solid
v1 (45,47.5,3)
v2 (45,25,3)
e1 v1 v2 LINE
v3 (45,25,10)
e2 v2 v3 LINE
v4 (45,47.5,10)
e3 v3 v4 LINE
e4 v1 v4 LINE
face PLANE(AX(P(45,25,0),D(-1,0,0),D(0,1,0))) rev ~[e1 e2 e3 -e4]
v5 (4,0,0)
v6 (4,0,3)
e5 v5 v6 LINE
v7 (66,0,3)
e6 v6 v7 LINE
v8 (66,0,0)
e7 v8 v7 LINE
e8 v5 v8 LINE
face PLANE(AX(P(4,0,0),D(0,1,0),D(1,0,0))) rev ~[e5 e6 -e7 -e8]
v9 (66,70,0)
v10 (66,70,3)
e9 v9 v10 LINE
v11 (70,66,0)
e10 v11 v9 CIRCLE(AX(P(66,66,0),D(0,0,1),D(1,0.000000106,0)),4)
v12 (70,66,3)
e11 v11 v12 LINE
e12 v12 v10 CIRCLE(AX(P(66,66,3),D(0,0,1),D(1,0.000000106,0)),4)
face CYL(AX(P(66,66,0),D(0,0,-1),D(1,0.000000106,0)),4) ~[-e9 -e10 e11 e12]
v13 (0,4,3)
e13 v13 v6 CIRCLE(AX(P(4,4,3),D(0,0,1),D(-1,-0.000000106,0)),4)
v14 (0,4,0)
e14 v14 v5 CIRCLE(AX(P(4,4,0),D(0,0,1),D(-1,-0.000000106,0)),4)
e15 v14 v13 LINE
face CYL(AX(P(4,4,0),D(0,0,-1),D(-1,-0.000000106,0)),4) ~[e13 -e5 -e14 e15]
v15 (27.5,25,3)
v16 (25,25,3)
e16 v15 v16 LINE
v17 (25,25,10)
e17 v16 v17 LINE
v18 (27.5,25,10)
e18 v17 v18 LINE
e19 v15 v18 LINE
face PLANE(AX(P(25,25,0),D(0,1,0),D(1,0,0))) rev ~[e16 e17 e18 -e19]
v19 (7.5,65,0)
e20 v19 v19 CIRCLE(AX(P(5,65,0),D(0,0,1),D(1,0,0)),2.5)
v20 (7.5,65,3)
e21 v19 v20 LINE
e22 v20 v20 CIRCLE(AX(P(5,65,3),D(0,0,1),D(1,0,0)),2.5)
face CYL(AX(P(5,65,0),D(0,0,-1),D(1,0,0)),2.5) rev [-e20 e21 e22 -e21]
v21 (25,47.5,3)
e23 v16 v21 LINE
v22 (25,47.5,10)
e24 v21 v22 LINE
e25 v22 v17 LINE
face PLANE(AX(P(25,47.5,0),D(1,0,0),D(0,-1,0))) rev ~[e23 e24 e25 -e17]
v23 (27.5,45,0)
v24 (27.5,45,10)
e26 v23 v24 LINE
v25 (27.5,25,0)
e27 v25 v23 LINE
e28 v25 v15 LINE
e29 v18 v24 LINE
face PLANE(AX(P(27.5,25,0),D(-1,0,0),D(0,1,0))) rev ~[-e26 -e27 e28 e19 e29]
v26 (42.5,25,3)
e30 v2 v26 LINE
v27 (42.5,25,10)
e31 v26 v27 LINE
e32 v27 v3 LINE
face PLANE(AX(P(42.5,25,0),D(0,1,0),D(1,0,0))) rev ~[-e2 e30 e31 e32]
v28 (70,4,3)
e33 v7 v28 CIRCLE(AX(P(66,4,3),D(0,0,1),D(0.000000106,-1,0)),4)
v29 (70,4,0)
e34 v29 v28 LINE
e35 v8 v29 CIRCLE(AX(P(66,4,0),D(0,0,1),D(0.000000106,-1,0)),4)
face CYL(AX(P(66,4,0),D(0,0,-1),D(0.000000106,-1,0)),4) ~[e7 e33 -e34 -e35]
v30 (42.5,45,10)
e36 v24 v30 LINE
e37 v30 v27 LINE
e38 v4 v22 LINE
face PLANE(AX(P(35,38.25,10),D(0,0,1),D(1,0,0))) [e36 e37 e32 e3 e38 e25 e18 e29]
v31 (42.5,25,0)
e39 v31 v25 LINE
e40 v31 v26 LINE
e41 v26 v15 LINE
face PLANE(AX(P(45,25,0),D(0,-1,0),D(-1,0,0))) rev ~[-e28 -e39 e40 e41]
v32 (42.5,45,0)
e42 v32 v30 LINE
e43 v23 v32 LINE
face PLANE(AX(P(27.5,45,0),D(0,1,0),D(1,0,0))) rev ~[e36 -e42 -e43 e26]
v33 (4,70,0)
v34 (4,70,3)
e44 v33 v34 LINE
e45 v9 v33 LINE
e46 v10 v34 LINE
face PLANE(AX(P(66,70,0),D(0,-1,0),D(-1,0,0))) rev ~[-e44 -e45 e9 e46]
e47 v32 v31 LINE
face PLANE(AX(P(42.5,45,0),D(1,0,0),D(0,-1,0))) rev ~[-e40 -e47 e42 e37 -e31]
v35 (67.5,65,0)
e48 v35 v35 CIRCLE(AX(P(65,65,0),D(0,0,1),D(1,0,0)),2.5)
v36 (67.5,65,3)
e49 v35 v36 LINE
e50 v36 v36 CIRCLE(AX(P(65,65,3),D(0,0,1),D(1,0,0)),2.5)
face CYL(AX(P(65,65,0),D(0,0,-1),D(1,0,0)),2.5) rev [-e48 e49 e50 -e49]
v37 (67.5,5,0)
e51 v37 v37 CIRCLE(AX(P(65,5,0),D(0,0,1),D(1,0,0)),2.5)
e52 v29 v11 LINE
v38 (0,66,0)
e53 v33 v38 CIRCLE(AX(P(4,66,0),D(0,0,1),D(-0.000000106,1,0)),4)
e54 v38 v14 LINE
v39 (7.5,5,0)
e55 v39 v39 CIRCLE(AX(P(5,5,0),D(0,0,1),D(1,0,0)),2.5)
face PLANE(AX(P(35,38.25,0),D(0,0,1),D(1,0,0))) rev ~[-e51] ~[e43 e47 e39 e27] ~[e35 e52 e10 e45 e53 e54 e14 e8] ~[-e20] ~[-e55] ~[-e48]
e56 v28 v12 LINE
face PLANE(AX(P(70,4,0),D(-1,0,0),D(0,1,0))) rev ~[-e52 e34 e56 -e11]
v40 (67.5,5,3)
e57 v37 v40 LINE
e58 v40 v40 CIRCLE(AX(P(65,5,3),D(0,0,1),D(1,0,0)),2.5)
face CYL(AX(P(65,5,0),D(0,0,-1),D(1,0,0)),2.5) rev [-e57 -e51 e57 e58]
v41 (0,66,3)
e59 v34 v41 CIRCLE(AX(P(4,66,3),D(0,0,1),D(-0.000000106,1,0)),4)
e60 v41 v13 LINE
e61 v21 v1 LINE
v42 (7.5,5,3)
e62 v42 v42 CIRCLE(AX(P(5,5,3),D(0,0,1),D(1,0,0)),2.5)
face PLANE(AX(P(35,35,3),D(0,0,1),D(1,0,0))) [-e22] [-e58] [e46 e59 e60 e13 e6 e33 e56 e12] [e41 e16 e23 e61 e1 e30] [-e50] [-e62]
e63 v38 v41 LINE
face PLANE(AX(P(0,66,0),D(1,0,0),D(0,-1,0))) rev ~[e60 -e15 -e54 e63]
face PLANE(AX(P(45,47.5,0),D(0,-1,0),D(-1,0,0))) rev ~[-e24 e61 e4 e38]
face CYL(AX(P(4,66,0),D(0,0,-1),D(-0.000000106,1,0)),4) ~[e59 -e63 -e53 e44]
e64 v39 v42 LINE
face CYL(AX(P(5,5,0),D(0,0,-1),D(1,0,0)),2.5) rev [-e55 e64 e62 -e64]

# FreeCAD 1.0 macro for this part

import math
import FreeCAD as App
import Part
import Sketcher
from FreeCAD import Vector
Q = App.Units.Quantity


def add_polygon(sketch, points):
    """Adds a closed chain of lines whose ends are joined by coincident constraints."""
    first, n = sketch.GeometryCount, len(points)
    for a, b in zip(points, points[1:] + points[:1]):
        sketch.addGeometry(Part.LineSegment(App.Vector(*a, 0), App.Vector(*b, 0)), False)
    for i in range(n):
        sketch.addConstraint(Sketcher.Constraint("Coincident", first + i, 2, first + (i + 1) % n, 1))

doc = App.newDocument("Part")
body = doc.addObject("PartDesign::Body", "Body")

# Sketch on XY plane
sketch1 = body.newObject("Sketcher::SketchObject", "Sketch")
sketch1.AttachmentSupport = (doc.getObject("XY_Plane"), [""])
sketch1.MapMode = "FlatFace"
sketch1.addGeometry(Part.ArcOfCircle(Part.Circle(Vector(4, 4, 0), Vector(0, 0, 1), 4), math.radians(-180), math.radians(-90)), False)  # 0
sketch1.addGeometry(Part.LineSegment(Vector(4, 0, 0), Vector(66, 0, 0)), False)  # 1
sketch1.addGeometry(Part.ArcOfCircle(Part.Circle(Vector(66, 4, 0), Vector(0, 0, 1), 4), math.radians(-90), math.radians(0)), False)  # 2
sketch1.addGeometry(Part.LineSegment(Vector(70, 4, 0), Vector(70, 66, 0)), False)  # 3
sketch1.addGeometry(Part.ArcOfCircle(Part.Circle(Vector(66, 66, 0), Vector(0, 0, 1), 4), math.radians(0), math.radians(90)), False)  # 4
sketch1.addGeometry(Part.LineSegment(Vector(66, 70, 0), Vector(4, 70, 0)), False)  # 5
sketch1.addGeometry(Part.ArcOfCircle(Part.Circle(Vector(4, 66, 0), Vector(0, 0, 1), 4), math.radians(90), math.radians(180)), False)  # 6
sketch1.addGeometry(Part.LineSegment(Vector(0, 66, 0), Vector(0, 4, 0)), False)  # 7
sketch1.addGeometry(Part.Circle(Vector(5, 5, 0), Vector(0, 0, 1), 2.5), False)  # 8
sketch1.addGeometry(Part.Circle(Vector(65, 5, 0), Vector(0, 0, 1), 2.5), False)  # 9
sketch1.addGeometry(Part.Circle(Vector(5, 65, 0), Vector(0, 0, 1), 2.5), False)  # 10
add_polygon(sketch1, [(45, 47.5), (45, 25), (25, 25), (25, 47.5)])  # lines 11-14
sketch1.addGeometry(Part.Circle(Vector(65, 65, 0), Vector(0, 0, 1), 2.5), False)  # 15
sketch1.addConstraint([
    Sketcher.Constraint("Tangent", 0, 2, 1, 1),
    Sketcher.Constraint("Tangent", 1, 2, 2, 1),
    Sketcher.Constraint("Tangent", 2, 2, 3, 1),
    Sketcher.Constraint("Tangent", 3, 2, 4, 1),
    Sketcher.Constraint("Tangent", 4, 2, 5, 1),
    Sketcher.Constraint("Tangent", 5, 2, 6, 1),
    Sketcher.Constraint("Tangent", 6, 2, 7, 1),
    Sketcher.Constraint("Tangent", 7, 2, 0, 1),
    Sketcher.Constraint("Horizontal", 1),
    Sketcher.Constraint("Vertical", 3),
    Sketcher.Constraint("Horizontal", 5),
    Sketcher.Constraint("Vertical", 7),
    Sketcher.Constraint("Vertical", 11),
    Sketcher.Constraint("Horizontal", 12),
    Sketcher.Constraint("Vertical", 13),
    Sketcher.Constraint("Horizontal", 14),
    Sketcher.Constraint("Equal", 0, 2),
    Sketcher.Constraint("Equal", 2, 4),
    Sketcher.Constraint("Equal", 4, 6),
    Sketcher.Constraint("Equal", 8, 9),
    Sketcher.Constraint("Equal", 9, 10),
    Sketcher.Constraint("Equal", 10, 15),
    Sketcher.Constraint("PointOnObject", 0, 2, -1),
    Sketcher.Constraint("PointOnObject", 6, 2, -2),
    Sketcher.Constraint("Horizontal", 8, 3, 9, 3),
    Sketcher.Constraint("Horizontal", 10, 3, 15, 3),
    Sketcher.Constraint("Vertical", 8, 3, 10, 3),
    Sketcher.Constraint("Vertical", 9, 3, 15, 3),
    Sketcher.Constraint("Equal", 5, 3),
    Sketcher.Constraint("Diameter", 8, Q("5 mm")),
    Sketcher.Constraint("Radius", 0, Q("4 mm")),
    Sketcher.Constraint("DistanceX", 1, 1, 1, 2, Q("62 mm")),
    Sketcher.Constraint("DistanceX", 12, 2, 12, 1, Q("20 mm")),
    Sketcher.Constraint("DistanceY", 11, 2, 11, 1, Q("22.5 mm")),
    Sketcher.Constraint("DistanceX", -1, 1, 8, 3, Q("5 mm")),
    Sketcher.Constraint("DistanceY", -1, 1, 8, 3, Q("5 mm")),
    Sketcher.Constraint("DistanceX", -1, 1, 9, 3, Q("65 mm")),
    Sketcher.Constraint("DistanceY", -1, 1, 10, 3, Q("65 mm")),
    Sketcher.Constraint("DistanceX", -1, 1, 11, 2, Q("45 mm")),
    Sketcher.Constraint("DistanceY", -1, 1, 11, 2, Q("25 mm")),
])
pad1 = body.newObject("PartDesign::Pad", "Pad")
pad1.Profile = sketch1
pad1.Length = 3

# Sketch on XY plane
sketch2 = body.newObject("Sketcher::SketchObject", "Sketch001")
sketch2.AttachmentSupport = (doc.getObject("XY_Plane"), [""])
sketch2.MapMode = "FlatFace"
add_polygon(sketch2, [(42.5, 45), (42.5, 25), (45, 25), (45, 47.5), (25, 47.5), (25, 25), (27.5, 25), (27.5, 45)])  # lines 0-7
sketch2.addConstraint([
    Sketcher.Constraint("Vertical", 0),
    Sketcher.Constraint("Horizontal", 1),
    Sketcher.Constraint("Vertical", 2),
    Sketcher.Constraint("Horizontal", 3),
    Sketcher.Constraint("Vertical", 4),
    Sketcher.Constraint("Horizontal", 5),
    Sketcher.Constraint("Vertical", 6),
    Sketcher.Constraint("Horizontal", 7),
    Sketcher.Constraint("Horizontal", 1, 2, 4, 2),
    Sketcher.Constraint("Equal", 1, 5),
    Sketcher.Constraint("Equal", 3, 0),
    Sketcher.Constraint("DistanceX", 3, 2, 3, 1, Q("20 mm")),
    Sketcher.Constraint("DistanceX", 7, 1, 7, 2, Q("15 mm")),
    Sketcher.Constraint("DistanceY", 2, 1, 2, 2, Q("22.5 mm")),
    Sketcher.Constraint("DistanceY", -1, 1, 0, 2, Q("25 mm")),
    Sketcher.Constraint("DistanceX", -1, 1, 1, 2, Q("45 mm")),
])
pad2 = body.newObject("PartDesign::Pad", "Pad001")
pad2.Profile = sketch2
pad2.Length = 10

doc.recompute()
